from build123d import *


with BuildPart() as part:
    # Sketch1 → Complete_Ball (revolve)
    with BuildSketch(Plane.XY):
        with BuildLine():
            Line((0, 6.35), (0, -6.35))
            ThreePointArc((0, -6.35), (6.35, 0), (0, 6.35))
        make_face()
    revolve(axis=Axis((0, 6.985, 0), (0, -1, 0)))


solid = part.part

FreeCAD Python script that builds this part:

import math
import FreeCAD as App
import Part
import Sketcher

V = App.Vector
Q = App.Units.Quantity

doc = App.newDocument("Part")
body = doc.addObject("PartDesign::Body", "Body")

# Sketch on XY plane
sketch1 = body.newObject("Sketcher::SketchObject", "Sketch")
sketch1.AttachmentSupport = (doc.getObject("XY_Plane"), [""])
sketch1.MapMode = "FlatFace"
sketch1.addGeometry([
    Part.LineSegment(V(0, 6, 0), V(0, -6, 0)),
    Part.ArcOfCircle(Part.Circle(V(0, 0, 0), V(0, 0, 1), 6), math.radians(-90), math.radians(90)),
], False)
sketch1.addConstraint([
    Sketcher.Constraint("Coincident", 0, 1, 1, 2),
    Sketcher.Constraint("Coincident", 1, 1, 0, 2),
    Sketcher.Constraint("Vertical", 0),
    Sketcher.Constraint("Coincident", 1, 3, -1, 1),
    Sketcher.Constraint("PointOnObject", 0, 1, -2),
    Sketcher.Constraint("Radius", 1, Q("0.25 in")),
])
revolution = body.newObject("PartDesign::Revolution", "Revolution")
revolution.Profile = sketch1
revolution.ReferenceAxis = (sketch1, ["V_Axis"])
revolution.Angle = 360

doc.recompute()
